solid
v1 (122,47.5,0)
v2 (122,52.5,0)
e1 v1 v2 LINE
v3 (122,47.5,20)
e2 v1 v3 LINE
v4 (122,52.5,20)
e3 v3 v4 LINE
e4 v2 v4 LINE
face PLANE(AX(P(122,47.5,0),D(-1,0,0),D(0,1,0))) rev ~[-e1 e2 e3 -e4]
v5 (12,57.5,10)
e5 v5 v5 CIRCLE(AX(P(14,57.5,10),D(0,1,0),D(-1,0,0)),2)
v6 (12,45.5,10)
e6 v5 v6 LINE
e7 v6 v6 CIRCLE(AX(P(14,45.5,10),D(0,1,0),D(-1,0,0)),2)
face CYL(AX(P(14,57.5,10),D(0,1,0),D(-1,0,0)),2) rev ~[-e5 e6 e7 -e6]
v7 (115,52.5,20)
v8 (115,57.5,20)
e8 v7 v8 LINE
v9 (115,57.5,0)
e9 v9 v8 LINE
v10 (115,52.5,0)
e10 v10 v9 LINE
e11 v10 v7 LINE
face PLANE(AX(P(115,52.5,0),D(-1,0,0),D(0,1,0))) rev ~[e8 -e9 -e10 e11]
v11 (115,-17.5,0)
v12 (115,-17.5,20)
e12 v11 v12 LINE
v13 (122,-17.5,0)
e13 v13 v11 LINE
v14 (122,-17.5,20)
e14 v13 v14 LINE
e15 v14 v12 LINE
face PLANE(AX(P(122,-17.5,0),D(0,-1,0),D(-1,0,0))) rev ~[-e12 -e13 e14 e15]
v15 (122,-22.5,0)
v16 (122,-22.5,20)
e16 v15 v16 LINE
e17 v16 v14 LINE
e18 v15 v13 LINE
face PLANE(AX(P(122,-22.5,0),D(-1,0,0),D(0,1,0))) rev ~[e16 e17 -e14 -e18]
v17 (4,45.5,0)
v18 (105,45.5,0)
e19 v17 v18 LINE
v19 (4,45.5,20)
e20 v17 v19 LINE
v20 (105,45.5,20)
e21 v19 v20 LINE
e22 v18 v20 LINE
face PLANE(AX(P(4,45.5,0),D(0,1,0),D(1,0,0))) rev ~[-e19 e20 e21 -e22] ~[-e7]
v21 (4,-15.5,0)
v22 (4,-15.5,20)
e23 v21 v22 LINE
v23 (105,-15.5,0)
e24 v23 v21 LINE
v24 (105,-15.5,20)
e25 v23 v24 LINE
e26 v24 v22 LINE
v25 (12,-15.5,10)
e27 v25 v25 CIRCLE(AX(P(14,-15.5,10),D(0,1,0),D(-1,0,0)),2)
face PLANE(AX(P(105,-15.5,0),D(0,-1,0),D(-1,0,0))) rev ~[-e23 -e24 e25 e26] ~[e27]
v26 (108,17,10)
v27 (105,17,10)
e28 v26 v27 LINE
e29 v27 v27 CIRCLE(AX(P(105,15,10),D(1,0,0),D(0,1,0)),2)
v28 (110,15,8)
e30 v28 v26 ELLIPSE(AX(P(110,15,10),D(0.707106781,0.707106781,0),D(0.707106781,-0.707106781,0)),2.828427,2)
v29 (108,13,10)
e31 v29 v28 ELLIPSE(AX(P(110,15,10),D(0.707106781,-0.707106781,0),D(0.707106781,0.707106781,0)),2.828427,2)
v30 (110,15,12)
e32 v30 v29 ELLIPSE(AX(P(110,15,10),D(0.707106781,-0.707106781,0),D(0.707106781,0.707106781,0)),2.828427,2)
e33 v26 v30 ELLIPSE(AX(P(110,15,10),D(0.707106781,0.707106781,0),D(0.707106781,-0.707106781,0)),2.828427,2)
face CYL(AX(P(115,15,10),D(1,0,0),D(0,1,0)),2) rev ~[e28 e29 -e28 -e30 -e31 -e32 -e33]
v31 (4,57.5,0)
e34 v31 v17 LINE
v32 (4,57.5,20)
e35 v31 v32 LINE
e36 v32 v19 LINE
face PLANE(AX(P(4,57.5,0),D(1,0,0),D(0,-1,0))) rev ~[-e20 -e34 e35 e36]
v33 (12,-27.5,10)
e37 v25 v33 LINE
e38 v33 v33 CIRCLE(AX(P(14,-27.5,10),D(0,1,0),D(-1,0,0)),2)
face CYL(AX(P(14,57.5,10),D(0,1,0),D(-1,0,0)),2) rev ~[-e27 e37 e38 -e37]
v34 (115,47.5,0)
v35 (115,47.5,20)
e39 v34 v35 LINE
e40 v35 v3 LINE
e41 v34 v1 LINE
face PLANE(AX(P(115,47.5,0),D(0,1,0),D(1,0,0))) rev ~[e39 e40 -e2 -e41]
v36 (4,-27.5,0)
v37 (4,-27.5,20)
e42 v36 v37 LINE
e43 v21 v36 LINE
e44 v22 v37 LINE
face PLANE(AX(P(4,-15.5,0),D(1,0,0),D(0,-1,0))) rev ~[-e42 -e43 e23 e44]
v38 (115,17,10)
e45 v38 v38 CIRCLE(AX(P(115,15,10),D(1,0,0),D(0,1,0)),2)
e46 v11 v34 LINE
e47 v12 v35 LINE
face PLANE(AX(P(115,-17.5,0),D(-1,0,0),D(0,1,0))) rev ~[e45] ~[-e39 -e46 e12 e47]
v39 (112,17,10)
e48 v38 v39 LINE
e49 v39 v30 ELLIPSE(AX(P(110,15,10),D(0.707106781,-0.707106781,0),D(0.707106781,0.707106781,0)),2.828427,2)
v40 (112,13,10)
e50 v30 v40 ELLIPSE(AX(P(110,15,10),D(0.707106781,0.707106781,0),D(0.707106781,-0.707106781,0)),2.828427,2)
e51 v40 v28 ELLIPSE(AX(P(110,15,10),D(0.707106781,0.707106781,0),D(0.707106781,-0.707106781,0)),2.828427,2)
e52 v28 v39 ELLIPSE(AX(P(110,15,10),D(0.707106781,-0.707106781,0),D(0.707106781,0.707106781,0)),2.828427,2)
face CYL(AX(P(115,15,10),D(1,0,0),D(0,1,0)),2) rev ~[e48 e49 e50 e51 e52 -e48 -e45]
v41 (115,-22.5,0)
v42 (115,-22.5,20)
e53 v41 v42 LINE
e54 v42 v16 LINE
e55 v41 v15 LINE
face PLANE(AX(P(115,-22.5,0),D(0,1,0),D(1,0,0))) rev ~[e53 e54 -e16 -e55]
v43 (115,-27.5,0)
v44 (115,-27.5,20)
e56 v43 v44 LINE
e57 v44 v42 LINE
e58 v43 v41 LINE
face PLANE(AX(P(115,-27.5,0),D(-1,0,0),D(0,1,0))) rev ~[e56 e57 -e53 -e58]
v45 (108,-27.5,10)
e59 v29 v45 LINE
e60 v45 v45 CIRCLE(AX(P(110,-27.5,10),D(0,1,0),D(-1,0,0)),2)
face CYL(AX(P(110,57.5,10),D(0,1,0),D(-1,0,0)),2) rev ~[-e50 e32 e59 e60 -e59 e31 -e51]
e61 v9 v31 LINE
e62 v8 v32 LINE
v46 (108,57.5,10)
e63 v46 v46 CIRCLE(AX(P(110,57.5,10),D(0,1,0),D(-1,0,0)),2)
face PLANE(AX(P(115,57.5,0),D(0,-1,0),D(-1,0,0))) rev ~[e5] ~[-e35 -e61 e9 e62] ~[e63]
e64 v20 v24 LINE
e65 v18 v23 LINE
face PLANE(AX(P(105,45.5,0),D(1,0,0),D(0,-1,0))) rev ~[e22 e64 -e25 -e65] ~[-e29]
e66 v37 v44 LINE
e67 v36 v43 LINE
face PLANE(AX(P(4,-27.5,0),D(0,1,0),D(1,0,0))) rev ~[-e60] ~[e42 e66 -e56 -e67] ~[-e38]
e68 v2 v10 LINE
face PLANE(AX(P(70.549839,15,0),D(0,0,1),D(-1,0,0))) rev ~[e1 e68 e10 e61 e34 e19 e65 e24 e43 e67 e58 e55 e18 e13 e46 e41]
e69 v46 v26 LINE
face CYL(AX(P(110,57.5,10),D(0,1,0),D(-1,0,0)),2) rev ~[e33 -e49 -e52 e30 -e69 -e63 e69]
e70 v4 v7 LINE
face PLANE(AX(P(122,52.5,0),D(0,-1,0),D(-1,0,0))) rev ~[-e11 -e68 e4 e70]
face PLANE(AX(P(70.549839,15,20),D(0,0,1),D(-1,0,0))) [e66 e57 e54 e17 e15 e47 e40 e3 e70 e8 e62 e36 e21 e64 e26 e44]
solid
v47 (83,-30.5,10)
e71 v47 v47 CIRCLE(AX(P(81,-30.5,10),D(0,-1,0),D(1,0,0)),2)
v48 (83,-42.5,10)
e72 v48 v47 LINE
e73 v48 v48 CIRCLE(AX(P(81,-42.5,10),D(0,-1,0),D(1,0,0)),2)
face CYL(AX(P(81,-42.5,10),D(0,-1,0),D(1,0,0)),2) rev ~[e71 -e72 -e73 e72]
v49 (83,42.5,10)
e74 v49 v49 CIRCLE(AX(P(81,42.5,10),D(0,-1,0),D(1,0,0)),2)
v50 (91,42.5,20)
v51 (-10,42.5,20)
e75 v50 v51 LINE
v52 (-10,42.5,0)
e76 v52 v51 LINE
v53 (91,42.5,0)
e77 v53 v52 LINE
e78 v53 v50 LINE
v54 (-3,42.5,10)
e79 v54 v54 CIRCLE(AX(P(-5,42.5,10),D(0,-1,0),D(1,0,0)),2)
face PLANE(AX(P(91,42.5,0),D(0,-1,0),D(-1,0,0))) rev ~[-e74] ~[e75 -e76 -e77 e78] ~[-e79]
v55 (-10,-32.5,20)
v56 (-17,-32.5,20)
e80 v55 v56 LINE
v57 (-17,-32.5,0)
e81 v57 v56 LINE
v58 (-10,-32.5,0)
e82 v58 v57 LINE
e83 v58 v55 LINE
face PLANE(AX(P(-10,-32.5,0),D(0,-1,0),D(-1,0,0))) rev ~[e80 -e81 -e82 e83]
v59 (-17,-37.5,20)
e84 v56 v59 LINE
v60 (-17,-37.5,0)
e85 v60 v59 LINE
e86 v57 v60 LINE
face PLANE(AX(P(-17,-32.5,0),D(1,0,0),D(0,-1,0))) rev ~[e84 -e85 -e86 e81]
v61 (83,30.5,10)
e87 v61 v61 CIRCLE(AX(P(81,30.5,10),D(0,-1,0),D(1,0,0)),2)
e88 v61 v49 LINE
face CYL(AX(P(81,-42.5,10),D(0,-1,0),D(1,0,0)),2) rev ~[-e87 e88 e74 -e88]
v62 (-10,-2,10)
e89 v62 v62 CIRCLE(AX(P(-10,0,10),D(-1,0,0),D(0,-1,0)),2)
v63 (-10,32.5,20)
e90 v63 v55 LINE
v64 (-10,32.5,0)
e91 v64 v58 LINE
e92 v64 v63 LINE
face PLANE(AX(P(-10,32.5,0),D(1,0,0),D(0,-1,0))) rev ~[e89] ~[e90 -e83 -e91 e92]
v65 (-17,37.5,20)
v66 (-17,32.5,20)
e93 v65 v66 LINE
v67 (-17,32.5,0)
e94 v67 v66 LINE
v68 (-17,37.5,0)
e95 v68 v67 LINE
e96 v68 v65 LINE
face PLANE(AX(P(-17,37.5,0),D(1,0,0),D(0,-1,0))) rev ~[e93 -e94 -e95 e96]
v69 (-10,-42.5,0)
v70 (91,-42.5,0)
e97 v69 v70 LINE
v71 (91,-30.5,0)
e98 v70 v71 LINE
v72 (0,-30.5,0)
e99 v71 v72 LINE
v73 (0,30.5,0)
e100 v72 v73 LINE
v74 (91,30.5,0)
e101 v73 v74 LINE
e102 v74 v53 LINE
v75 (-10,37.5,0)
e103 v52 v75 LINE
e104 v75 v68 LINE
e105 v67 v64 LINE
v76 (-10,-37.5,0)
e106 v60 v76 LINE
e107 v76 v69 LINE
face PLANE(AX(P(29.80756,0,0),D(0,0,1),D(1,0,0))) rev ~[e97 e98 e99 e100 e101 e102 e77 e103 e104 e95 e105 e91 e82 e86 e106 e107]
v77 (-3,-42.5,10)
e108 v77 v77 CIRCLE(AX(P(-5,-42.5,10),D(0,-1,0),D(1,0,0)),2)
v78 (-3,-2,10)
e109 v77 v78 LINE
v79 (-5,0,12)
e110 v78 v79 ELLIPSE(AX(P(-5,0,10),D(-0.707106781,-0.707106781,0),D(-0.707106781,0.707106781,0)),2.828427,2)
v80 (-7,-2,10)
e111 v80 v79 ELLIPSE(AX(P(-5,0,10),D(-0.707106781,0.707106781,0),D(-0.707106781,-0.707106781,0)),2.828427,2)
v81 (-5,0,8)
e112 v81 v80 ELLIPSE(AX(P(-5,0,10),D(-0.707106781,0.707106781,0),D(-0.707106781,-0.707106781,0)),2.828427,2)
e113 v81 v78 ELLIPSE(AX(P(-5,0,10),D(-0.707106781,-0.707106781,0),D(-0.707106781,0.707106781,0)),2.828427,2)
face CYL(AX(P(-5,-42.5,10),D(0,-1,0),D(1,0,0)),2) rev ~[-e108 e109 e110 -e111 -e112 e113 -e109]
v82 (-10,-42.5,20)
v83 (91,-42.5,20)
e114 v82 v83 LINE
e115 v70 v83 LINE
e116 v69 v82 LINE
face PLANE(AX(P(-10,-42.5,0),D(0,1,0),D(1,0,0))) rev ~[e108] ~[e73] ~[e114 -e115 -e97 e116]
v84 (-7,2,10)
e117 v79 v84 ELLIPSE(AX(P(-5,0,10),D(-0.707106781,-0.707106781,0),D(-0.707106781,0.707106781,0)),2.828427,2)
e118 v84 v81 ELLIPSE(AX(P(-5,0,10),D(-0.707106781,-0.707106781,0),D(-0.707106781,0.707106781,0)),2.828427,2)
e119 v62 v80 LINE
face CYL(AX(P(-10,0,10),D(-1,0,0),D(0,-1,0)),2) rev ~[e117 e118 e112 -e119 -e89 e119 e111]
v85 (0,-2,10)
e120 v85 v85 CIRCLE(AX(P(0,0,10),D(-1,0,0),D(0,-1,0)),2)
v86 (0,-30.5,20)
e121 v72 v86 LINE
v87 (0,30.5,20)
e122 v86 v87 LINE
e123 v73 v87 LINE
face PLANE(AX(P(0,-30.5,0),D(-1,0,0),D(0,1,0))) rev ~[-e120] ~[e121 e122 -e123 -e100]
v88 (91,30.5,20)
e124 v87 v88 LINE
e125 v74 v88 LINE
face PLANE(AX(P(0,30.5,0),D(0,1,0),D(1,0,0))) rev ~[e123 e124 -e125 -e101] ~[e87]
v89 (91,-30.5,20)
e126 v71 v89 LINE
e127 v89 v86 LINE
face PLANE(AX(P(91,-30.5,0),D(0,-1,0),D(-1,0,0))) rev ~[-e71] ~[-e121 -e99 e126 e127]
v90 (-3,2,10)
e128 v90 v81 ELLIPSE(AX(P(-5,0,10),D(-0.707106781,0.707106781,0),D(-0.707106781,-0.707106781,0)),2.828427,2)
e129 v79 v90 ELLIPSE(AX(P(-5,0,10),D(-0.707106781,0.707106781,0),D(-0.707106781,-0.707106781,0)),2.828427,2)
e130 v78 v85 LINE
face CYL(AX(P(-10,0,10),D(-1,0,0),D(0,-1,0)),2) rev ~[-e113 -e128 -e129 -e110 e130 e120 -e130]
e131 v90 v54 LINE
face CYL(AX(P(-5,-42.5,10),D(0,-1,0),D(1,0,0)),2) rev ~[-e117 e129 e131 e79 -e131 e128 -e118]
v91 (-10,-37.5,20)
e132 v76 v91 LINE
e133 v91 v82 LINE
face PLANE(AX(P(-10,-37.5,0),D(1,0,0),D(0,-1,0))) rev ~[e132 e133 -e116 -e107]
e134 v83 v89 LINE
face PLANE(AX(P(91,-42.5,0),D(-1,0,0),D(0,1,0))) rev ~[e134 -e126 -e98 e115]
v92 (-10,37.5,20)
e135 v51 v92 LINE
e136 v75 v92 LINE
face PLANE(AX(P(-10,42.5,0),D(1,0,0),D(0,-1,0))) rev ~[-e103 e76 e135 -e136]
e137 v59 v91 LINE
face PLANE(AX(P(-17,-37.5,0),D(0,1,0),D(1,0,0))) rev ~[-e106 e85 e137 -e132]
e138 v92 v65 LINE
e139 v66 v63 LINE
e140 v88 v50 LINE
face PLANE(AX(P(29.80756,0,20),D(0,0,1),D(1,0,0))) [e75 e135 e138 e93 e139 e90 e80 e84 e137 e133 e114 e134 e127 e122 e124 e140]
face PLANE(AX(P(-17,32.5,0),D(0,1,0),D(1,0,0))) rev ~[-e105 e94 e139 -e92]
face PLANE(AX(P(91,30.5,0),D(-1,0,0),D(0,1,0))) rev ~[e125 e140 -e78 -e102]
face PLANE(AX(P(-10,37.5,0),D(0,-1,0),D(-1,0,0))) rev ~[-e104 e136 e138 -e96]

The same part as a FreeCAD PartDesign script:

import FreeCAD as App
import Part
import Sketcher

doc = App.newDocument("Part")
body = doc.addObject("PartDesign::Body", "Body")

# Sketch on XY plane
sketch1 = body.newObject("Sketcher::SketchObject", "Sketch")
sketch1.AttachmentSupport = (doc.getObject("XY_Plane"), [""])
sketch1.MapMode = "FlatFace"
sketch1.addGeometry(Part.LineSegment(App.Vector(-10, -42, 0), App.Vector(91, -42, 0)), False)
sketch1.addGeometry(Part.LineSegment(App.Vector(91, -42, 0), App.Vector(91, -30, 0)), False)
sketch1.addGeometry(Part.LineSegment(App.Vector(91, -30, 0), App.Vector(0, -30, 0)), False)
sketch1.addGeometry(Part.LineSegment(App.Vector(0, -30, 0), App.Vector(0, 30, 0)), False)
sketch1.addGeometry(Part.LineSegment(App.Vector(0, 30, 0), App.Vector(91, 30, 0)), False)
sketch1.addGeometry(Part.LineSegment(App.Vector(91, 30, 0), App.Vector(91, 42, 0)), False)
sketch1.addGeometry(Part.LineSegment(App.Vector(91, 42, 0), App.Vector(-10, 42, 0)), False)
sketch1.addGeometry(Part.LineSegment(App.Vector(-10, 42, 0), App.Vector(-10, 38, 0)), False)
sketch1.addGeometry(Part.LineSegment(App.Vector(-10, 38, 0), App.Vector(-17, 38, 0)), False)
sketch1.addGeometry(Part.LineSegment(App.Vector(-17, 38, 0), App.Vector(-17, 32, 0)), False)
sketch1.addGeometry(Part.LineSegment(App.Vector(-17, 32, 0), App.Vector(-10, 32, 0)), False)
sketch1.addGeometry(Part.LineSegment(App.Vector(-10, 32, 0), App.Vector(-10, -32, 0)), False)
sketch1.addGeometry(Part.LineSegment(App.Vector(-10, -32, 0), App.Vector(-17, -32, 0)), False)
sketch1.addGeometry(Part.LineSegment(App.Vector(-17, -32, 0), App.Vector(-17, -38, 0)), False)
sketch1.addGeometry(Part.LineSegment(App.Vector(-17, -38, 0), App.Vector(-10, -38, 0)), False)
sketch1.addGeometry(Part.LineSegment(App.Vector(-10, -38, 0), App.Vector(-10, -42, 0)), False)
sketch1.addConstraint(Sketcher.Constraint("Coincident", 0, 2, 1, 1))
sketch1.addConstraint(Sketcher.Constraint("Coincident", 1, 2, 2, 1))
sketch1.addConstraint(Sketcher.Constraint("Coincident", 2, 2, 3, 1))
sketch1.addConstraint(Sketcher.Constraint("Coincident", 3, 2, 4, 1))
sketch1.addConstraint(Sketcher.Constraint("Coincident", 4, 2, 5, 1))
sketch1.addConstraint(Sketcher.Constraint("Coincident", 5, 2, 6, 1))
sketch1.addConstraint(Sketcher.Constraint("Coincident", 6, 2, 7, 1))
sketch1.addConstraint(Sketcher.Constraint("Coincident", 7, 2, 8, 1))
sketch1.addConstraint(Sketcher.Constraint("Coincident", 8, 2, 9, 1))
sketch1.addConstraint(Sketcher.Constraint("Coincident", 9, 2, 10, 1))
sketch1.addConstraint(Sketcher.Constraint("Coincident", 10, 2, 11, 1))
sketch1.addConstraint(Sketcher.Constraint("Coincident", 11, 2, 12, 1))
sketch1.addConstraint(Sketcher.Constraint("Coincident", 12, 2, 13, 1))
sketch1.addConstraint(Sketcher.Constraint("Coincident", 13, 2, 14, 1))
sketch1.addConstraint(Sketcher.Constraint("Coincident", 14, 2, 15, 1))
sketch1.addConstraint(Sketcher.Constraint("Coincident", 15, 2, 0, 1))
sketch1.addConstraint(Sketcher.Constraint("Horizontal", 0))
sketch1.addConstraint(Sketcher.Constraint("Vertical", 1))
sketch1.addConstraint(Sketcher.Constraint("Horizontal", 2))
sketch1.addConstraint(Sketcher.Constraint("Vertical", 3))
sketch1.addConstraint(Sketcher.Constraint("Horizontal", 4))
sketch1.addConstraint(Sketcher.Constraint("Vertical", 5))
sketch1.addConstraint(Sketcher.Constraint("Horizontal", 6))
sketch1.addConstraint(Sketcher.Constraint("Vertical", 7))
sketch1.addConstraint(Sketcher.Constraint("Horizontal", 8))
sketch1.addConstraint(Sketcher.Constraint("Vertical", 9))
sketch1.addConstraint(Sketcher.Constraint("Horizontal", 10))
sketch1.addConstraint(Sketcher.Constraint("Vertical", 11))
sketch1.addConstraint(Sketcher.Constraint("Horizontal", 12))
sketch1.addConstraint(Sketcher.Constraint("Vertical", 13))
sketch1.addConstraint(Sketcher.Constraint("Horizontal", 14))
sketch1.addConstraint(Sketcher.Constraint("Vertical", 15))
sketch1.addConstraint(Sketcher.Constraint("Symmetric", 2, 2, 3, 2, -1, 1))
sketch1.addConstraint(Sketcher.Constraint("Symmetric", 0, 2, 5, 2, -1))
sketch1.addConstraint(Sketcher.Constraint("Symmetric", 9, 2, 12, 2, -1))
sketch1.addConstraint(Sketcher.Constraint("Symmetric", 7, 2, 14, 2, -1))
sketch1.addConstraint(Sketcher.Constraint("Vertical", 7, 2, 10, 2))
sketch1.addConstraint(Sketcher.Constraint("Equal", 7, 9))
sketch1.addConstraint(Sketcher.Constraint("DistanceX", 0, 1, 0, 2, 101.0))
sketch1.addConstraint(Sketcher.Constraint("DistanceX", 2, 2, 2, 1, 91.0))
sketch1.addConstraint(Sketcher.Constraint("DistanceX", 8, 2, 8, 1, 7.0))
sketch1.addConstraint(Sketcher.Constraint("DistanceY", 1, 1, 1, 2, 12.0))
sketch1.addConstraint(Sketcher.Constraint("DistanceY", 3, 1, 3, 2, 61.0))
sketch1.addConstraint(Sketcher.Constraint("DistanceY", 7, 2, 7, 1, 5.0))
pad1 = body.newObject("PartDesign::Pad", "Pad")
pad1.Profile = sketch1
pad1.Length = 20

# Sketch on YZ plane
sketch2 = body.newObject("Sketcher::SketchObject", "Sketch001")
sketch2.AttachmentSupport = (doc.getObject("YZ_Plane"), [""])
sketch2.MapMode = "FlatFace"
sketch2.AttachmentOffset = App.Placement(App.Vector(0, 0, -10), App.Rotation())
sketch2.addGeometry(Part.Circle(App.Vector(0, 10, 0), App.Vector(0, 0, 1), 2), False)
sketch2.addConstraint(Sketcher.Constraint("PointOnObject", 0, 3, -2))
sketch2.addConstraint(Sketcher.Constraint("Diameter", 0, 4.0))
sketch2.addConstraint(Sketcher.Constraint("DistanceY", -1, 1, 0, 3, 10.0))
pocket1 = body.newObject("PartDesign::Pocket", "Pocket")
pocket1.Profile = sketch2
pocket1.Type = "ThroughAll"
pocket1.Reversed = True

# Sketch on XZ plane
sketch3 = body.newObject("Sketcher::SketchObject", "Sketch002")
sketch3.AttachmentSupport = (doc.getObject("XZ_Plane"), [""])
sketch3.MapMode = "FlatFace"
sketch3.AttachmentOffset = App.Placement(App.Vector(0, 0, 42.5), App.Rotation())
sketch3.addGeometry(Part.Circle(App.Vector(-5, 10, 0), App.Vector(0, 0, 1), 2), False)
sketch3.addGeometry(Part.Circle(App.Vector(81, 10, 0), App.Vector(0, 0, 1), 2), False)
sketch3.addConstraint(Sketcher.Constraint("Equal", 0, 1))
sketch3.addConstraint(Sketcher.Constraint("Horizontal", 0, 3, 1, 3))
sketch3.addConstraint(Sketcher.Constraint("Diameter", 0, 4.0))
sketch3.addConstraint(Sketcher.Constraint("DistanceX", 0, 3, -1, 1, 5.0))
sketch3.addConstraint(Sketcher.Constraint("DistanceY", -1, 1, 0, 3, 10.0))
sketch3.addConstraint(Sketcher.Constraint("DistanceX", -1, 1, 1, 3, 81.0))
pocket2 = body.newObject("PartDesign::Pocket", "Pocket001")
pocket2.Profile = sketch3
pocket2.Type = "ThroughAll"
body2 = doc.addObject("PartDesign::Body", "Body001")

# Sketch on XY plane
sketch4 = body2.newObject("Sketcher::SketchObject", "Sketch003")
sketch4.AttachmentSupport = (doc.getObject("XY_Plane001"), [""])
sketch4.MapMode = "FlatFace"
sketch4.addGeometry(Part.LineSegment(App.Vector(115, 58, 0), App.Vector(4, 58, 0)), False)
sketch4.addGeometry(Part.LineSegment(App.Vector(4, 58, 0), App.Vector(4, 46, 0)), False)
sketch4.addGeometry(Part.LineSegment(App.Vector(4, 46, 0), App.Vector(105, 46, 0)), False)
sketch4.addGeometry(Part.LineSegment(App.Vector(105, 46, 0), App.Vector(105, -16, 0)), False)
sketch4.addGeometry(Part.LineSegment(App.Vector(105, -16, 0), App.Vector(4, -16, 0)), False)
sketch4.addGeometry(Part.LineSegment(App.Vector(4, -16, 0), App.Vector(4, -28, 0)), False)
sketch4.addGeometry(Part.LineSegment(App.Vector(4, -28, 0), App.Vector(115, -28, 0)), False)
sketch4.addGeometry(Part.LineSegment(App.Vector(115, -28, 0), App.Vector(115, -22, 0)), False)
sketch4.addGeometry(Part.LineSegment(App.Vector(115, -22, 0), App.Vector(122, -22, 0)), False)
sketch4.addGeometry(Part.LineSegment(App.Vector(122, -22, 0), App.Vector(122, -18, 0)), False)
sketch4.addGeometry(Part.LineSegment(App.Vector(122, -18, 0), App.Vector(115, -18, 0)), False)
sketch4.addGeometry(Part.LineSegment(App.Vector(115, -18, 0), App.Vector(115, 48, 0)), False)
sketch4.addGeometry(Part.LineSegment(App.Vector(115, 48, 0), App.Vector(122, 48, 0)), False)
sketch4.addGeometry(Part.LineSegment(App.Vector(122, 48, 0), App.Vector(122, 52, 0)), False)
sketch4.addGeometry(Part.LineSegment(App.Vector(122, 52, 0), App.Vector(115, 52, 0)), False)
sketch4.addGeometry(Part.LineSegment(App.Vector(115, 52, 0), App.Vector(115, 58, 0)), False)
sketch4.addConstraint(Sketcher.Constraint("Coincident", 0, 2, 1, 1))
sketch4.addConstraint(Sketcher.Constraint("Coincident", 1, 2, 2, 1))
sketch4.addConstraint(Sketcher.Constraint("Coincident", 2, 2, 3, 1))
sketch4.addConstraint(Sketcher.Constraint("Coincident", 3, 2, 4, 1))
sketch4.addConstraint(Sketcher.Constraint("Coincident", 4, 2, 5, 1))
sketch4.addConstraint(Sketcher.Constraint("Coincident", 5, 2, 6, 1))
sketch4.addConstraint(Sketcher.Constraint("Coincident", 6, 2, 7, 1))
sketch4.addConstraint(Sketcher.Constraint("Coincident", 7, 2, 8, 1))
sketch4.addConstraint(Sketcher.Constraint("Coincident", 8, 2, 9, 1))
sketch4.addConstraint(Sketcher.Constraint("Coincident", 9, 2, 10, 1))
sketch4.addConstraint(Sketcher.Constraint("Coincident", 10, 2, 11, 1))
sketch4.addConstraint(Sketcher.Constraint("Coincident", 11, 2, 12, 1))
sketch4.addConstraint(Sketcher.Constraint("Coincident", 12, 2, 13, 1))
sketch4.addConstraint(Sketcher.Constraint("Coincident", 13, 2, 14, 1))
sketch4.addConstraint(Sketcher.Constraint("Coincident", 14, 2, 15, 1))
sketch4.addConstraint(Sketcher.Constraint("Coincident", 15, 2, 0, 1))
sketch4.addConstraint(Sketcher.Constraint("Horizontal", 0))
sketch4.addConstraint(Sketcher.Constraint("Vertical", 1))
sketch4.addConstraint(Sketcher.Constraint("Horizontal", 2))
sketch4.addConstraint(Sketcher.Constraint("Vertical", 3))
sketch4.addConstraint(Sketcher.Constraint("Horizontal", 4))
sketch4.addConstraint(Sketcher.Constraint("Vertical", 5))
sketch4.addConstraint(Sketcher.Constraint("Horizontal", 6))
sketch4.addConstraint(Sketcher.Constraint("Vertical", 7))
sketch4.addConstraint(Sketcher.Constraint("Horizontal", 8))
sketch4.addConstraint(Sketcher.Constraint("Vertical", 9))
sketch4.addConstraint(Sketcher.Constraint("Horizontal", 10))
sketch4.addConstraint(Sketcher.Constraint("Vertical", 11))
sketch4.addConstraint(Sketcher.Constraint("Horizontal", 12))
sketch4.addConstraint(Sketcher.Constraint("Vertical", 13))
sketch4.addConstraint(Sketcher.Constraint("Horizontal", 14))
sketch4.addConstraint(Sketcher.Constraint("Vertical", 15))
sketch4.addConstraint(Sketcher.Constraint("Vertical", 1, 2, 4, 2))
sketch4.addConstraint(Sketcher.Constraint("Vertical", 7, 2, 10, 2))
sketch4.addConstraint(Sketcher.Constraint("Vertical", 9, 2, 12, 2))
sketch4.addConstraint(Sketcher.Constraint("Vertical", 11, 2, 14, 2))
sketch4.addConstraint(Sketcher.Constraint("Equal", 1, 5))
sketch4.addConstraint(Sketcher.Constraint("Equal", 7, 9))
sketch4.addConstraint(Sketcher.Constraint("Equal", 9, 13))
sketch4.addConstraint(Sketcher.Constraint("Equal", 13, 15))
sketch4.addConstraint(Sketcher.Constraint("DistanceX", 0, 2, 0, 1, 111.0))
sketch4.addConstraint(Sketcher.Constraint("DistanceX", 2, 1, 2, 2, 101.0))
sketch4.addConstraint(Sketcher.Constraint("DistanceX", 8, 1, 8, 2, 7.0))
sketch4.addConstraint(Sketcher.Constraint("DistanceY", 1, 2, 1, 1, 12.0))
sketch4.addConstraint(Sketcher.Constraint("DistanceY", 3, 2, 3, 1, 61.0))
sketch4.addConstraint(Sketcher.Constraint("DistanceY", 7, 1, 7, 2, 5.0))
sketch4.addConstraint(Sketcher.Constraint("DistanceX", -1, 1, 0, 2, 4.0))
sketch4.addConstraint(Sketcher.Constraint("DistanceY", -1, 1, 0, 2, 57.5))
pad2 = body2.newObject("PartDesign::Pad", "Pad001")
pad2.Profile = sketch4
pad2.Length = 20

# Sketch on YZ plane
sketch5 = body2.newObject("Sketcher::SketchObject", "Sketch004")
sketch5.AttachmentSupport = (doc.getObject("YZ_Plane001"), [""])
sketch5.MapMode = "FlatFace"
sketch5.AttachmentOffset = App.Placement(App.Vector(0, 0, 115), App.Rotation())
sketch5.addGeometry(Part.Circle(App.Vector(15, 10, 0), App.Vector(0, 0, 1), 2), False)
sketch5.addConstraint(Sketcher.Constraint("Diameter", 0, 4.0))
sketch5.addConstraint(Sketcher.Constraint("DistanceX", -1, 1, 0, 3, 15.0))
sketch5.addConstraint(Sketcher.Constraint("DistanceY", -1, 1, 0, 3, 10.0))
pocket3 = body2.newObject("PartDesign::Pocket", "Pocket002")
pocket3.Profile = sketch5
pocket3.Type = "ThroughAll"

# Sketch on XZ plane
sketch6 = body2.newObject("Sketcher::SketchObject", "Sketch005")
sketch6.AttachmentSupport = (doc.getObject("XZ_Plane001"), [""])
sketch6.MapMode = "FlatFace"
sketch6.AttachmentOffset = App.Placement(App.Vector(0, 0, -57.5), App.Rotation())
sketch6.addGeometry(Part.Circle(App.Vector(110, 10, 0), App.Vector(0, 0, 1), 2), False)
sketch6.addGeometry(Part.Circle(App.Vector(14, 10, 0), App.Vector(0, 0, 1), 2), False)
sketch6.addConstraint(Sketcher.Constraint("Equal", 0, 1))
sketch6.addConstraint(Sketcher.Constraint("Horizontal", 0, 3, 1, 3))
sketch6.addConstraint(Sketcher.Constraint("Diameter", 0, 4.0))
sketch6.addConstraint(Sketcher.Constraint("DistanceX", -1, 1, 0, 3, 110.0))
sketch6.addConstraint(Sketcher.Constraint("DistanceY", -1, 1, 0, 3, 10.0))
sketch6.addConstraint(Sketcher.Constraint("DistanceX", -1, 1, 1, 3, 14.0))
pocket4 = body2.newObject("PartDesign::Pocket", "Pocket003")
pocket4.Profile = sketch6
pocket4.Type = "ThroughAll"
pocket4.Reversed = True

doc.recompute()
